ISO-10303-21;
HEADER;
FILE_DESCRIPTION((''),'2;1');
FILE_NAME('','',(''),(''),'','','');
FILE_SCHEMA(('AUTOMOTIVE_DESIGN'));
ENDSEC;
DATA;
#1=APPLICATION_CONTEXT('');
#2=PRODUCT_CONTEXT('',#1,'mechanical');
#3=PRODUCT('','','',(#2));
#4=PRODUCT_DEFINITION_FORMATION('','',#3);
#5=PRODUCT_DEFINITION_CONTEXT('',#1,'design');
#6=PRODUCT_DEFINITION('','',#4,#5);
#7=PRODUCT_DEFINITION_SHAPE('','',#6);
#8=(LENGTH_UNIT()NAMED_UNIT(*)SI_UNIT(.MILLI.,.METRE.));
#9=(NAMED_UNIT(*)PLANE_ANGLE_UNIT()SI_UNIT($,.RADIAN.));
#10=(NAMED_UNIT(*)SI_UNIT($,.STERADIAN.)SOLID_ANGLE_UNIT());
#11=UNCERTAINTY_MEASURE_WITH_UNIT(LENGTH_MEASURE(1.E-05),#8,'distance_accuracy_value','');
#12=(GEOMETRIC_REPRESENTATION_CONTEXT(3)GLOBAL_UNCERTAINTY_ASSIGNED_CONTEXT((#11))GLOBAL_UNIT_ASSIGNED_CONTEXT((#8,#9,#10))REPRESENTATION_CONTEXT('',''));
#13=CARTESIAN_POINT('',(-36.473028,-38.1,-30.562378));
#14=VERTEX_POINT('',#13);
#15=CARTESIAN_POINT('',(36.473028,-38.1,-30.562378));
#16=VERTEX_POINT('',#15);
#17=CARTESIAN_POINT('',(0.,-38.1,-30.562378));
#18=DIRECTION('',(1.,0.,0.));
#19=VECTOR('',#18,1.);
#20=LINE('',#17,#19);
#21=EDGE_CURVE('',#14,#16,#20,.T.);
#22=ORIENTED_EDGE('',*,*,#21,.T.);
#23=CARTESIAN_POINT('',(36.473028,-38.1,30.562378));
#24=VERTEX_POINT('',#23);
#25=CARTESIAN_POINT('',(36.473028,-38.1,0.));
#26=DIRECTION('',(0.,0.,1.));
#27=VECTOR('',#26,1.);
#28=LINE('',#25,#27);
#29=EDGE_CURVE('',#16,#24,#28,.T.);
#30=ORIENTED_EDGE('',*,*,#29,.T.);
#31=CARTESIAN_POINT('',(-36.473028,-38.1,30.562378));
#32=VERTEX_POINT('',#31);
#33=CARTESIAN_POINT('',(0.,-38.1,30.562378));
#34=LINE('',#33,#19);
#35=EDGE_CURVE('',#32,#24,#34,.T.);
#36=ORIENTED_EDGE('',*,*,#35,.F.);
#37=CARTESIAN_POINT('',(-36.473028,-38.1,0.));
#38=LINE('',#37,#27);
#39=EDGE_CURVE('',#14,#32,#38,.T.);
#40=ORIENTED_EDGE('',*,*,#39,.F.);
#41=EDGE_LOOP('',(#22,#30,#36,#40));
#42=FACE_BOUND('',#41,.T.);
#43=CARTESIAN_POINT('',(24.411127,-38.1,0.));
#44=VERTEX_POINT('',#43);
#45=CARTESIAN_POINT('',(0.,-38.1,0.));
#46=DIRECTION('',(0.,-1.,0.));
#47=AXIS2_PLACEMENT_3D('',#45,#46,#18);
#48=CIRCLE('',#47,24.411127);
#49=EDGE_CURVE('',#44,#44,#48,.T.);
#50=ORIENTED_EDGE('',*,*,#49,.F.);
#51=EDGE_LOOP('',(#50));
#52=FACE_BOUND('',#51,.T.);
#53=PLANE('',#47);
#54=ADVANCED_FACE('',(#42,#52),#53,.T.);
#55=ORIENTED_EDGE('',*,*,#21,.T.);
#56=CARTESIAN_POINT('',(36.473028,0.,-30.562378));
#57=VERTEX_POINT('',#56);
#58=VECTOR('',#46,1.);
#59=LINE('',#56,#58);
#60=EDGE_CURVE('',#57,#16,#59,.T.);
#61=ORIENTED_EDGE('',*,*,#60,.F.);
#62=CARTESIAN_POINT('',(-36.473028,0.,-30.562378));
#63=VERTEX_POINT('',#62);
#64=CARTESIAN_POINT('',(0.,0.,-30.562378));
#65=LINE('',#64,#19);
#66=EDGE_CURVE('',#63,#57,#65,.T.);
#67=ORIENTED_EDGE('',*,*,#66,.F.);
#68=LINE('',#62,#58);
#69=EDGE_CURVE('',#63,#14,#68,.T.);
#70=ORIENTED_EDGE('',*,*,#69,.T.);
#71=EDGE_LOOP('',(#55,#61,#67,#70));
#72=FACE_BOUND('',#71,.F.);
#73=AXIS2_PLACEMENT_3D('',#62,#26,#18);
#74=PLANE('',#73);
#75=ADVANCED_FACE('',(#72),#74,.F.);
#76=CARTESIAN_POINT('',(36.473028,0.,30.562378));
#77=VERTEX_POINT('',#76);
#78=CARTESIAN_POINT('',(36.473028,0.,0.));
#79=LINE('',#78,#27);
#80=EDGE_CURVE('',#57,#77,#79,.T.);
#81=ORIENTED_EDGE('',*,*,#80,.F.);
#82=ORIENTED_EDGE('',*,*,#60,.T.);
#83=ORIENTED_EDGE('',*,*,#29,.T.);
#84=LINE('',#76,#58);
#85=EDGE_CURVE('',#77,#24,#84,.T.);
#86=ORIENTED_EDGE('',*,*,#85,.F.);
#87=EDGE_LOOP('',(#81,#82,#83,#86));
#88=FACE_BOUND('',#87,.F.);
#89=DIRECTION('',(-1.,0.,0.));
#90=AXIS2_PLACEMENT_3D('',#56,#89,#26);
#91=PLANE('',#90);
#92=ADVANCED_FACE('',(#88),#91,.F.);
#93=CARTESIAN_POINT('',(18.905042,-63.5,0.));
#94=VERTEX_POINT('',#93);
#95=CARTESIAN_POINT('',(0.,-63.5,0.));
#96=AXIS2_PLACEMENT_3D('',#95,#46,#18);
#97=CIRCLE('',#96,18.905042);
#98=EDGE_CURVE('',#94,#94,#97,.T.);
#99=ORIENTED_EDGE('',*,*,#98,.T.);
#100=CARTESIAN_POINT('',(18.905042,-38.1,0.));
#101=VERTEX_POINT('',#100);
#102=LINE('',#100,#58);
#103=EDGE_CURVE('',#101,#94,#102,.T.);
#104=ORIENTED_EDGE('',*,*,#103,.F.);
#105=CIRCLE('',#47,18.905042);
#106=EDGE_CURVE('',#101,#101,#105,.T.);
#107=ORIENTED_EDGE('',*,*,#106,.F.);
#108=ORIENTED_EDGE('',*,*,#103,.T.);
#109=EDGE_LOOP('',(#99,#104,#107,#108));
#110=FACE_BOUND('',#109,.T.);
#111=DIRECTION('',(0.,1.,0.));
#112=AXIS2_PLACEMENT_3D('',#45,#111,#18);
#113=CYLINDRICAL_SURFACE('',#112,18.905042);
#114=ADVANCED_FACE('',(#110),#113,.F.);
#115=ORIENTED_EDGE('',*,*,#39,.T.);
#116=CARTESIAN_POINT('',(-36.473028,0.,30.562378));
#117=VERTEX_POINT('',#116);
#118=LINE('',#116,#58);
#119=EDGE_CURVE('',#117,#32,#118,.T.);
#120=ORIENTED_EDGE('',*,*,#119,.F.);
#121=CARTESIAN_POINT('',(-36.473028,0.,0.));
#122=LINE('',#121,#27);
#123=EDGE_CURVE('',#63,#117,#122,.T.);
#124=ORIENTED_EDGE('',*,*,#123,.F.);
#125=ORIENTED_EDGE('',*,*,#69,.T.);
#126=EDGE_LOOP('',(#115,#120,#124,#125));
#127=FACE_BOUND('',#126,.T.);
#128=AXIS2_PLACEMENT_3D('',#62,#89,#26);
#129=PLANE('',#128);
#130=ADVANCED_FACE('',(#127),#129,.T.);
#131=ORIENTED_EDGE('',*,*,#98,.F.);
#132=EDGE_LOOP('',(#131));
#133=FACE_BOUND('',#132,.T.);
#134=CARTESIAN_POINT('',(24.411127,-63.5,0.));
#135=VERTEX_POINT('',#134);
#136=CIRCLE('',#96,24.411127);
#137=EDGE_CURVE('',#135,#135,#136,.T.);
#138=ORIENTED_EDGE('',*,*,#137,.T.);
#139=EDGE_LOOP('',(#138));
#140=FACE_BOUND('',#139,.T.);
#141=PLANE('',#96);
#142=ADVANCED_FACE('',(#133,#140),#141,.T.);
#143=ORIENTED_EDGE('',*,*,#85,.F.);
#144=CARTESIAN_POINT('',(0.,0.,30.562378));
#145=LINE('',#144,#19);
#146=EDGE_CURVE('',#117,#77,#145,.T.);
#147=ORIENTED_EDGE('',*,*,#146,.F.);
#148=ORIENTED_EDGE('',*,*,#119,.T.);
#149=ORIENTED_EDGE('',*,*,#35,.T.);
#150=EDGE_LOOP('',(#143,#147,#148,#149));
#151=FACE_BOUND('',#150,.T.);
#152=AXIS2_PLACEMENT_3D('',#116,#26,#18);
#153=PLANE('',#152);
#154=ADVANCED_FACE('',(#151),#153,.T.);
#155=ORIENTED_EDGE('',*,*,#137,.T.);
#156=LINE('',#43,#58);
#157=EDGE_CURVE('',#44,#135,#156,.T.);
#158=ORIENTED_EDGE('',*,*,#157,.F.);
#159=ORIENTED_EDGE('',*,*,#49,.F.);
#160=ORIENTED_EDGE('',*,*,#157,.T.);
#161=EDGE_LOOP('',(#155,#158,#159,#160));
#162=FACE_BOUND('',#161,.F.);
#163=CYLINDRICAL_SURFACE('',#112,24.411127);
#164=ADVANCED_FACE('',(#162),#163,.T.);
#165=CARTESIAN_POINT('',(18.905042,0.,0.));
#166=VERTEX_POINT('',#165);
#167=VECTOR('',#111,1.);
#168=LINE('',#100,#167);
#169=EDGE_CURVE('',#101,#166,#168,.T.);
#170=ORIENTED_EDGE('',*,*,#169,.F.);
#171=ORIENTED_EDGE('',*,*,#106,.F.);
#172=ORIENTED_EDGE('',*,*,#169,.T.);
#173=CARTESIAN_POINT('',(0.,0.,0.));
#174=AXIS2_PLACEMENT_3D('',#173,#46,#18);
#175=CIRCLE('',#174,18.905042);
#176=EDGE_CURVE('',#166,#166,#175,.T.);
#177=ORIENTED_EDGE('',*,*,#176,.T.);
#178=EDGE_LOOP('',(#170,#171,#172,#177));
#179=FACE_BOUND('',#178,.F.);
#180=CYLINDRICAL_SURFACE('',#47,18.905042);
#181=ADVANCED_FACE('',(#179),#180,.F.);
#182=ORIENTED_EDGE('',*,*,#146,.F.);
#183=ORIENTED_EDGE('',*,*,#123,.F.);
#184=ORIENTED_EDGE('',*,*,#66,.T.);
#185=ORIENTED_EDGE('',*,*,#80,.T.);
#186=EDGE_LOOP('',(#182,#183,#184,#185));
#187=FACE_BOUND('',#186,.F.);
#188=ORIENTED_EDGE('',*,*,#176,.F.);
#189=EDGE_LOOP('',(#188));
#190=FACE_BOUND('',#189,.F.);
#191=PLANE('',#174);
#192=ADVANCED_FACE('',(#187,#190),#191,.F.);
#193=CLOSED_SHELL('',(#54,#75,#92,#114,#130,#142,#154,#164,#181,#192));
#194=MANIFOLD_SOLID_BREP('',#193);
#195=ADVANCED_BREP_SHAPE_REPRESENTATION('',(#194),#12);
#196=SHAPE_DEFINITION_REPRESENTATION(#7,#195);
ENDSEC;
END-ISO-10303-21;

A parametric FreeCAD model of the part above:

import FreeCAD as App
import Part
import Sketcher
Q = App.Units.Quantity


def add_polygon(sketch, points):
    """Adds a closed chain of lines whose ends are joined by coincident constraints."""
    first, n = sketch.GeometryCount, len(points)
    for a, b in zip(points, points[1:] + points[:1]):
        sketch.addGeometry(Part.LineSegment(App.Vector(*a, 0), App.Vector(*b, 0)), False)
    for i in range(n):
        sketch.addConstraint(Sketcher.Constraint("Coincident", first + i, 2, first + (i + 1) % n, 1))

doc = App.newDocument("Part")
body = doc.addObject("PartDesign::Body", "Body")

# Sketch on XZ plane
sketch1 = body.newObject("Sketcher::SketchObject", "Sketch")
sketch1.AttachmentSupport = (doc.getObject("XZ_Plane"), [""])
sketch1.MapMode = "FlatFace"
add_polygon(sketch1, [(-36, 31), (-36, -31), (36, -31), (36, 31)])  # lines 0-3
sketch1.addConstraint([
    Sketcher.Constraint("Vertical", 0),
    Sketcher.Constraint("Horizontal", 1),
    Sketcher.Constraint("Vertical", 2),
    Sketcher.Constraint("Horizontal", 3),
    Sketcher.Constraint("Symmetric", 0, 2, 2, 2, -1, 1),
    Sketcher.Constraint("DistanceX", 1, 1, 1, 2, 72.946057),
    Sketcher.Constraint("DistanceY", 0, 2, 0, 1, 61.124757),
])
pad1 = body.newObject("PartDesign::Pad", "Pad")
pad1.Profile = sketch1
pad1.Length = Q("1.5 in")

# Sketch on XZ plane
sketch2 = body.newObject("Sketcher::SketchObject", "Sketch001")
sketch2.AttachmentSupport = (doc.getObject("XZ_Plane"), [""])
sketch2.MapMode = "FlatFace"
sketch2.AttachmentOffset = App.Placement(App.Vector(0, 0, 1.5 * 25.4), App.Rotation())
sketch2.addGeometry(Part.Circle(App.Vector(0, 0, 0), App.Vector(0, 0, 1), 19), False)
sketch2.addConstraint([
    Sketcher.Constraint("Coincident", 0, 3, -1, 1),
    Sketcher.Constraint("Diameter", 0, 37.810084),
])
pocket1 = body.newObject("PartDesign::Pocket", "Pocket")
pocket1.Profile = sketch2
pocket1.Length = Q("2 in")

# Sketch on XZ plane
sketch3 = body.newObject("Sketcher::SketchObject", "Sketch002")
sketch3.AttachmentSupport = (doc.getObject("XZ_Plane"), [""])
sketch3.MapMode = "FlatFace"
sketch3.AttachmentOffset = App.Placement(App.Vector(0, 0, 1.5 * 25.4), App.Rotation())
sketch3.addGeometry([
    Part.Circle(App.Vector(0, 0, 0), App.Vector(0, 0, 1), 24),
    Part.Circle(App.Vector(0, 0, 0), App.Vector(0, 0, 1), 19),
], False)
sketch3.addConstraint([
    Sketcher.Constraint("Coincident", 0, 3, -1, 1),
    Sketcher.Constraint("Coincident", 1, 3, -1, 1),
    Sketcher.Constraint("Diameter", 0, 48.822254),
    Sketcher.Constraint("Diameter", 1, 37.810084),
])
pad2 = body.newObject("PartDesign::Pad", "Pad001")
pad2.Profile = sketch3
pad2.Length = Q("1 in")

doc.recompute()
